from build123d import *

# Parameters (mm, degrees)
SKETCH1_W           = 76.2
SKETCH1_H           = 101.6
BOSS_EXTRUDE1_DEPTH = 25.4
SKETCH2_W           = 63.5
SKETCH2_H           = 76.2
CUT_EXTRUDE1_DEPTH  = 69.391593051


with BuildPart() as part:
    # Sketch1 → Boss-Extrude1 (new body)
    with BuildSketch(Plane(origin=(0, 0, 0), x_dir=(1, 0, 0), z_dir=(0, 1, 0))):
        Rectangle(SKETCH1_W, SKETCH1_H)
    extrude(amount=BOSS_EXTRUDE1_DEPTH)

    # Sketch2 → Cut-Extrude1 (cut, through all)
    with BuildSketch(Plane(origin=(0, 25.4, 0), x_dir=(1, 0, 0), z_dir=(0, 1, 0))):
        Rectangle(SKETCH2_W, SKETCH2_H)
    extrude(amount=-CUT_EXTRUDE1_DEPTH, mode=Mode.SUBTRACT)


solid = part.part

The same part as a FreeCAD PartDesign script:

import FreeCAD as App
import Part
import Sketcher
from FreeCAD import Vector
Q = App.Units.Quantity

doc = App.newDocument("Part")
params = doc.addObject("Spreadsheet::Sheet", "Params")
for row, (alias, value) in enumerate([
    ("sketch1_width", "3 in"),
    ("sketch1_height", "4 in"),
    ("pad1_length", "1 in"),
    ("sketch2_height", "3 in"),
    ("sketch2_width", "2.5 in"),
], start=1):
    params.set(f"A{row}", alias)
    params.set(f"B{row}", "=" + value)
    params.setAlias(f"B{row}", alias)

body = doc.addObject("PartDesign::Body", "Body")

# Sketch on XZ plane
sketch1 = body.newObject("Sketcher::SketchObject", "Sketch")
sketch1.AttachmentSupport = (doc.getObject("XZ_Plane"), [""])
sketch1.MapMode = "FlatFace"
sketch1.addGeometry(Part.LineSegment(Vector(-38, -51, 0), Vector(-38, 51, 0)), False)
sketch1.addGeometry(Part.LineSegment(Vector(-38, 51, 0), Vector(38, 51, 0)), False)
sketch1.addGeometry(Part.LineSegment(Vector(38, 51, 0), Vector(38, -51, 0)), False)
sketch1.addGeometry(Part.LineSegment(Vector(38, -51, 0), Vector(-38, -51, 0)), False)
sketch1.addConstraint(Sketcher.Constraint("Coincident", 0, 2, 1, 1))
sketch1.addConstraint(Sketcher.Constraint("Coincident", 1, 2, 2, 1))
sketch1.addConstraint(Sketcher.Constraint("Coincident", 2, 2, 3, 1))
sketch1.addConstraint(Sketcher.Constraint("Coincident", 3, 2, 0, 1))
sketch1.addConstraint(Sketcher.Constraint("Vertical", 0))
sketch1.addConstraint(Sketcher.Constraint("Horizontal", 1))
sketch1.addConstraint(Sketcher.Constraint("Vertical", 2))
sketch1.addConstraint(Sketcher.Constraint("Horizontal", 3))
sketch1.addConstraint(Sketcher.Constraint("Symmetric", 0, 2, 2, 2, -1, 1))
sketch1.addConstraint(Sketcher.Constraint("DistanceX", 1, 1, 1, 2, Q("3 in")))
sketch1.addConstraint(Sketcher.Constraint("DistanceY", 0, 1, 0, 2, Q("4 in")))
sketch1.setExpression("Constraints[9]", "Params.sketch1_width")
sketch1.setExpression("Constraints[10]", "Params.sketch1_height")
pad1 = body.newObject("PartDesign::Pad", "Pad")
pad1.Profile = sketch1
pad1.setExpression("Length", "Params.pad1_length")
pad1.Reversed = True

# Sketch on XZ plane
sketch2 = body.newObject("Sketcher::SketchObject", "Sketch001")
sketch2.AttachmentSupport = (doc.getObject("XZ_Plane"), [""])
sketch2.MapMode = "FlatFace"
sketch2.AttachmentOffset = App.Placement(Vector(0, 0, -1 * 25.4), App.Rotation())
sketch2.addGeometry(Part.LineSegment(Vector(-32, -38, 0), Vector(-32, 38, 0)), False)
sketch2.addGeometry(Part.LineSegment(Vector(-32, 38, 0), Vector(32, 38, 0)), False)
sketch2.addGeometry(Part.LineSegment(Vector(32, 38, 0), Vector(32, -38, 0)), False)
sketch2.addGeometry(Part.LineSegment(Vector(32, -38, 0), Vector(-32, -38, 0)), False)
sketch2.addConstraint(Sketcher.Constraint("Coincident", 0, 2, 1, 1))
sketch2.addConstraint(Sketcher.Constraint("Coincident", 1, 2, 2, 1))
sketch2.addConstraint(Sketcher.Constraint("Coincident", 2, 2, 3, 1))
sketch2.addConstraint(Sketcher.Constraint("Coincident", 3, 2, 0, 1))
sketch2.addConstraint(Sketcher.Constraint("Vertical", 0))
sketch2.addConstraint(Sketcher.Constraint("Horizontal", 1))
sketch2.addConstraint(Sketcher.Constraint("Vertical", 2))
sketch2.addConstraint(Sketcher.Constraint("Horizontal", 3))
sketch2.addConstraint(Sketcher.Constraint("Symmetric", 0, 2, 2, 2, -1, 1))
sketch2.addConstraint(Sketcher.Constraint("DistanceY", 0, 1, 0, 2, Q("3 in")))
sketch2.addConstraint(Sketcher.Constraint("DistanceX", 1, 1, 1, 2, Q("2.5 in")))
sketch2.setExpression("Constraints[9]", "Params.sketch2_height")
sketch2.setExpression("Constraints[10]", "Params.sketch2_width")
pocket1 = body.newObject("PartDesign::Pocket", "Pocket")
pocket1.Profile = sketch2
pocket1.Type = "ThroughAll"
pocket1.Reversed = True

doc.recompute()
